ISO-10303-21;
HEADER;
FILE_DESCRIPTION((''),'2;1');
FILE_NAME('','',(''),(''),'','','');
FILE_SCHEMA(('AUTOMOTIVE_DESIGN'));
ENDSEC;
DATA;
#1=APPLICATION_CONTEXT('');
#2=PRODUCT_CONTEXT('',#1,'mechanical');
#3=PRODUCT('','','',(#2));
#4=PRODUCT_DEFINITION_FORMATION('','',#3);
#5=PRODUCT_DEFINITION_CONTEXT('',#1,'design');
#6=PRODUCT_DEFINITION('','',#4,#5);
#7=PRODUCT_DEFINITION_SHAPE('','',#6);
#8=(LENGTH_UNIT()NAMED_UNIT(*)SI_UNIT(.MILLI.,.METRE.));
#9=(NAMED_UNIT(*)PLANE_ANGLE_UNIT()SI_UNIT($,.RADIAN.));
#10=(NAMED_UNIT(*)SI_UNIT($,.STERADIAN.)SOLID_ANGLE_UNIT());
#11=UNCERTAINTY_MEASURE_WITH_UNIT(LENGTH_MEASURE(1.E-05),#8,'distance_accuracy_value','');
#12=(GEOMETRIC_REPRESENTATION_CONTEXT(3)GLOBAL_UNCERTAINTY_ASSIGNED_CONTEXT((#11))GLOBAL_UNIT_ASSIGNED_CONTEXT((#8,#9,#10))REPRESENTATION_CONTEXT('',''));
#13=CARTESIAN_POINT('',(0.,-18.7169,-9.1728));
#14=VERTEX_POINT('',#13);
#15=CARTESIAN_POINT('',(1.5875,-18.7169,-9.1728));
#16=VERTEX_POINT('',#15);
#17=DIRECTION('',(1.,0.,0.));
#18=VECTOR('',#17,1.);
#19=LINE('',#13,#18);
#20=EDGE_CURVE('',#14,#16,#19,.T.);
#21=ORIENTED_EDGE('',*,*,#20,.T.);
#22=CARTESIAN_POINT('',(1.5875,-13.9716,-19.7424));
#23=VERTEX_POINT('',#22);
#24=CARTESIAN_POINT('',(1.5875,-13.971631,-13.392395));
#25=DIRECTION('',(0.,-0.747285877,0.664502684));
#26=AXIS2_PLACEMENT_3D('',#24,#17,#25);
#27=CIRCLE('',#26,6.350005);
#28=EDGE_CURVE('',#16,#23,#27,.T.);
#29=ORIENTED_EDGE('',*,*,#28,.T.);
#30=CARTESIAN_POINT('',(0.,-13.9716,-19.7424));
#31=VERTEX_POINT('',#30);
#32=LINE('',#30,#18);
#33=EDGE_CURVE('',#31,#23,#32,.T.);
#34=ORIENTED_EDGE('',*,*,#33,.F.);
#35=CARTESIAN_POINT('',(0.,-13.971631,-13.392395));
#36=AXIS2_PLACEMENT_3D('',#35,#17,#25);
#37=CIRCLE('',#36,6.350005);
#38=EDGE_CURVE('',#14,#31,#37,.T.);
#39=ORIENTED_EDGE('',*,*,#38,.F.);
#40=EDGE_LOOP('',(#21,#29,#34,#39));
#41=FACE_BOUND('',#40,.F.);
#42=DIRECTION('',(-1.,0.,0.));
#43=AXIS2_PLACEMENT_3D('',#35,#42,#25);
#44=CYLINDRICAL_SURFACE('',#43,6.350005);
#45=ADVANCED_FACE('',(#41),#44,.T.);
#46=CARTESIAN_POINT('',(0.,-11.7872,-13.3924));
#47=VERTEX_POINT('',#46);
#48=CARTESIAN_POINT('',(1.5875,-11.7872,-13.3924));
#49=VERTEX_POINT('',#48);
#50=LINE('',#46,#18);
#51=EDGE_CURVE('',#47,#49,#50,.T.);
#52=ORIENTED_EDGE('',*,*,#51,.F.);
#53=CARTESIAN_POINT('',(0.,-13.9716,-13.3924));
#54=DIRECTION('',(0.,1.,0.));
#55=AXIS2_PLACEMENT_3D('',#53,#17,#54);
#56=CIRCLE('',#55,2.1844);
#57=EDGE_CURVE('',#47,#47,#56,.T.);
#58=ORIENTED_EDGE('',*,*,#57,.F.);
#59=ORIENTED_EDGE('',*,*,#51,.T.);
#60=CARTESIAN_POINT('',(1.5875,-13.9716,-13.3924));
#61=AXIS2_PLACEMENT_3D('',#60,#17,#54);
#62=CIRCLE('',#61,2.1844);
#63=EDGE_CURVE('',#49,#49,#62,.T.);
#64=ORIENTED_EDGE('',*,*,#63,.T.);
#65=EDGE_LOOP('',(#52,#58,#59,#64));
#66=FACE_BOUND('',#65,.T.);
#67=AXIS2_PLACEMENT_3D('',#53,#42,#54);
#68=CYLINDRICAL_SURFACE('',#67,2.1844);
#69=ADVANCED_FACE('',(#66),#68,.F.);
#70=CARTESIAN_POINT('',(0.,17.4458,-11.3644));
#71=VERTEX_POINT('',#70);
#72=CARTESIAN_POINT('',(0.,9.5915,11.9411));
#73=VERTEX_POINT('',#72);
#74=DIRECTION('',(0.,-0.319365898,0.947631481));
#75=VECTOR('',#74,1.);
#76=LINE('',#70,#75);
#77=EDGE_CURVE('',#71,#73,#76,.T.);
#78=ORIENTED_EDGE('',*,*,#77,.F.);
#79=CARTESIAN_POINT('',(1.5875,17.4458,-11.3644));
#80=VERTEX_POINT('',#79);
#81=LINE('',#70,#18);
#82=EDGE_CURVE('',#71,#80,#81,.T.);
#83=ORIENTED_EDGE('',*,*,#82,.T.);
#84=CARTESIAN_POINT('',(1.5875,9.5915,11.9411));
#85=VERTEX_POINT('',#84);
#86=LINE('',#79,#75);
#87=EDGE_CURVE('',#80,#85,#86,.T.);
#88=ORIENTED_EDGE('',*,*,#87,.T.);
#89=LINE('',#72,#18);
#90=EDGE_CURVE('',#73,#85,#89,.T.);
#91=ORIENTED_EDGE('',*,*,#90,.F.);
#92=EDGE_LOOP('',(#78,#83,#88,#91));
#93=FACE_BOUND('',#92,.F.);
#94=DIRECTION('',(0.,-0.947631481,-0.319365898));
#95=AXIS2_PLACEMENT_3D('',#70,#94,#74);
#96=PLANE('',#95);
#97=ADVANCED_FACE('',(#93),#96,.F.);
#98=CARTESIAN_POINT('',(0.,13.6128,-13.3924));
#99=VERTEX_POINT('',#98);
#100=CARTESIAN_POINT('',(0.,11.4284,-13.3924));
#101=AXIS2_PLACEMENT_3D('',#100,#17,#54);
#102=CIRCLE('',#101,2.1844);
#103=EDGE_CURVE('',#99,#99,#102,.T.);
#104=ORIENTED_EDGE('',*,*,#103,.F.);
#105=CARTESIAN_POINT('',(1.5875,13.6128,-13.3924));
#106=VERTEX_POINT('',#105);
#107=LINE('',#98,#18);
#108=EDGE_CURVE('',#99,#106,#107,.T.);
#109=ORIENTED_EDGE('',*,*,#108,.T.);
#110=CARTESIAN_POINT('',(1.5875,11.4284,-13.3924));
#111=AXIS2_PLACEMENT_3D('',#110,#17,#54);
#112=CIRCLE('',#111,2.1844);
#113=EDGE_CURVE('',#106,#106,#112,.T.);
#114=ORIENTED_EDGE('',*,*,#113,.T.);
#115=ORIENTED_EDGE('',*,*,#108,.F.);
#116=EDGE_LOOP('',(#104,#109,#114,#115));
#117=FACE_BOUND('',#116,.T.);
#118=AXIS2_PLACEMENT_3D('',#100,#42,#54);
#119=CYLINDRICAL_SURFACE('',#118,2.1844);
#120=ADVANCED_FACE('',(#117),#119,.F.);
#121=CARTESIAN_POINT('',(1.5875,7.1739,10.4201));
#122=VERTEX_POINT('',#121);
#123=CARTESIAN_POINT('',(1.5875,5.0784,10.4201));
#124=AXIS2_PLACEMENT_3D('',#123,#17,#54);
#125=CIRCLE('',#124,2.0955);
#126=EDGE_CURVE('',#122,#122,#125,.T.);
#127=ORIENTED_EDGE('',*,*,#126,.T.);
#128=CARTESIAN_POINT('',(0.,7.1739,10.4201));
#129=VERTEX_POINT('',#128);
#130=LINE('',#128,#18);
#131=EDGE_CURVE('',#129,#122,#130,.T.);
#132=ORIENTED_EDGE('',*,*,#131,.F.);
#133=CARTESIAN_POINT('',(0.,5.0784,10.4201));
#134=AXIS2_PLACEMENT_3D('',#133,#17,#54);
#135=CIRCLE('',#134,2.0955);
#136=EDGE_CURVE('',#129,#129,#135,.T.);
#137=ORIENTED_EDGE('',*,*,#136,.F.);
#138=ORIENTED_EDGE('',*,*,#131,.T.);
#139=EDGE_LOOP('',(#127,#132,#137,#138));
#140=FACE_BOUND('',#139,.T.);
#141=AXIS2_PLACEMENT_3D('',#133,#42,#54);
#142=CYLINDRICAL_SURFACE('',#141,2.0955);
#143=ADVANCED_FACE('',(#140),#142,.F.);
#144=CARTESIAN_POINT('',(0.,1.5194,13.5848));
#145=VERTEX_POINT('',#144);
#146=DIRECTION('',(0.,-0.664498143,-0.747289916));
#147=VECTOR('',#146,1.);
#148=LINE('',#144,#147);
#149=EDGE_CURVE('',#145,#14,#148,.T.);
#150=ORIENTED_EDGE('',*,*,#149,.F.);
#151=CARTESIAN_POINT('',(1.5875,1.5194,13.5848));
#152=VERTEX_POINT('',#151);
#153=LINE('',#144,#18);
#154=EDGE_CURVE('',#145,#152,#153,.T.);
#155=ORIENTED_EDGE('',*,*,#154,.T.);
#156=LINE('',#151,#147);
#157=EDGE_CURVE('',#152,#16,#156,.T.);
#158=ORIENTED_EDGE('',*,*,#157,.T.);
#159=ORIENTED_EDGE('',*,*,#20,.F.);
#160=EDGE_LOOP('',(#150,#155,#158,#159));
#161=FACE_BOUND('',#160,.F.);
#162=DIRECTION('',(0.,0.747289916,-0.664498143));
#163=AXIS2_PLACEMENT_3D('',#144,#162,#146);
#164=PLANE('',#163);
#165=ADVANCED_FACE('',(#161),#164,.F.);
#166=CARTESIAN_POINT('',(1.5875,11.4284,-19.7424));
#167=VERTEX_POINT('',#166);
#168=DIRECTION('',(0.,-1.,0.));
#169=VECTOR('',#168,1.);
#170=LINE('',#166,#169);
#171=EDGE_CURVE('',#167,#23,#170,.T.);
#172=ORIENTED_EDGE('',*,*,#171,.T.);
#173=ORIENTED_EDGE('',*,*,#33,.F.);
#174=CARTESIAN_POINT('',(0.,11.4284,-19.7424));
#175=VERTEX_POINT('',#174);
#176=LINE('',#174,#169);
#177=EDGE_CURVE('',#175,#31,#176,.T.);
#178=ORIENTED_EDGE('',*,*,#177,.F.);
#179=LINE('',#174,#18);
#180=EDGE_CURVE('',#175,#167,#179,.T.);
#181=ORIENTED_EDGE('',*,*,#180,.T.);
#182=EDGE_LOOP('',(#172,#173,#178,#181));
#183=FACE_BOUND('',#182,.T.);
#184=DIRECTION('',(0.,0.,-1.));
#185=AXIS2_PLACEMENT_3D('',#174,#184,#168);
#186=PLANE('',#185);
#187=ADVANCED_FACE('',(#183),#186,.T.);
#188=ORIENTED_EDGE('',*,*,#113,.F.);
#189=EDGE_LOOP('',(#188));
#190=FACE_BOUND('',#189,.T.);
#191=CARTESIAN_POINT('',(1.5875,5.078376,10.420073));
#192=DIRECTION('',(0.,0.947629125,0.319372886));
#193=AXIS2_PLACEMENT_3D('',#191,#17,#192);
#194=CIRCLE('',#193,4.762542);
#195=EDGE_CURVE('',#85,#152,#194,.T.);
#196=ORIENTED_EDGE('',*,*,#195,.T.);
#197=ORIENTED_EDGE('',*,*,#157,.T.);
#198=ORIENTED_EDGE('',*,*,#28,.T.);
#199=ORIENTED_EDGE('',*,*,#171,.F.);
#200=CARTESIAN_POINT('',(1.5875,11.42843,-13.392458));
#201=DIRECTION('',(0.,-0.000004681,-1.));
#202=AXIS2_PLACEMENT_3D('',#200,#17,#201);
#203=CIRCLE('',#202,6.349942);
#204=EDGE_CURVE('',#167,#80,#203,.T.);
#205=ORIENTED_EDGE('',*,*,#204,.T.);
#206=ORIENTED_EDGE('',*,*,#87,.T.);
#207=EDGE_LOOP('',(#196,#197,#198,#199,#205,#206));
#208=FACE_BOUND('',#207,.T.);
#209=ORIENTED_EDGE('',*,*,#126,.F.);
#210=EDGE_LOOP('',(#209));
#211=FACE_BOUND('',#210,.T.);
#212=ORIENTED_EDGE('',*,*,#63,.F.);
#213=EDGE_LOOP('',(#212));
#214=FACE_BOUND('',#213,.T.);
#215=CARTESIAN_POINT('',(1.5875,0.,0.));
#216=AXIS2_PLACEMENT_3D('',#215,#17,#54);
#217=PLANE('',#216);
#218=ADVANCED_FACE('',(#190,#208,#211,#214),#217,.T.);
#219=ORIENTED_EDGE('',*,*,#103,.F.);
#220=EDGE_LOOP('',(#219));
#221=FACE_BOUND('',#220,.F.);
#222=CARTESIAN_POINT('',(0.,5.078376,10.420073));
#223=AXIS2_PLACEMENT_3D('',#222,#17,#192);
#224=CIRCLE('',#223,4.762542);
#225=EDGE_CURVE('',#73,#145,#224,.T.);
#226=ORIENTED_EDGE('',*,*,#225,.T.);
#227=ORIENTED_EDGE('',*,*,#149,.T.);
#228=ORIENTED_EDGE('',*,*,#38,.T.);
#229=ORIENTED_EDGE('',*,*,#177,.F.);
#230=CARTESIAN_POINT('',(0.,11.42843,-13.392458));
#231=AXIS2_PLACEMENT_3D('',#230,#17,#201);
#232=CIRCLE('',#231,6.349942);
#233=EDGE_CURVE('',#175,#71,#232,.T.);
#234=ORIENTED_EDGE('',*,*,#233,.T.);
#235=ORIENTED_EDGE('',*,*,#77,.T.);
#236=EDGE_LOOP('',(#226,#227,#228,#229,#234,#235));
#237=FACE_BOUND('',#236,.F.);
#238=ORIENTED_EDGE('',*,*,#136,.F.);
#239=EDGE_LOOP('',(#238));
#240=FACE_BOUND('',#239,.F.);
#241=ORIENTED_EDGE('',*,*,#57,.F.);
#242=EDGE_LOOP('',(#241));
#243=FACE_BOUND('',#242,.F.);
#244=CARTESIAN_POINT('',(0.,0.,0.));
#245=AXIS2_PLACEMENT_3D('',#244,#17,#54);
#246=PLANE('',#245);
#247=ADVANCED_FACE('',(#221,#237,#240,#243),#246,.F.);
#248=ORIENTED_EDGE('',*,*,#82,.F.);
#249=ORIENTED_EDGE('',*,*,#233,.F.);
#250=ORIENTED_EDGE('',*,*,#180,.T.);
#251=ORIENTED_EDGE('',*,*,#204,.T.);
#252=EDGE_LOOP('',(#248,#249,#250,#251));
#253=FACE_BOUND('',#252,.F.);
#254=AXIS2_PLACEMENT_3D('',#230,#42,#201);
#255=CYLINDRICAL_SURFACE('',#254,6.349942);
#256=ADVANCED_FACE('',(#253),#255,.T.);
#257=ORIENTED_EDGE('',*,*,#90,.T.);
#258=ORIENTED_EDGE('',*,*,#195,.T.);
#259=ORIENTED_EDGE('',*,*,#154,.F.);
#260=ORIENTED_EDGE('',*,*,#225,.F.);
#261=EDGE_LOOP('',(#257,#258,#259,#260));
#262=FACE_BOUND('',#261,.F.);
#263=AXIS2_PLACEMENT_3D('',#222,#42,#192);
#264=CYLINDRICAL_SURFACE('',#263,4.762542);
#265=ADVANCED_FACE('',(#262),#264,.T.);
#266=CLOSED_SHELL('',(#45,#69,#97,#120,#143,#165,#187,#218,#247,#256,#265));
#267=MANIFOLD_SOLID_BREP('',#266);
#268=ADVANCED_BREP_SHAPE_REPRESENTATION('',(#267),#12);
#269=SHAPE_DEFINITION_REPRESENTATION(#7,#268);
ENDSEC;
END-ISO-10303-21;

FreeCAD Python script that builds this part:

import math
import FreeCAD as App
import Part
import Sketcher
Q = App.Units.Quantity

doc = App.newDocument("Part")
params = doc.addObject("Spreadsheet::Sheet", "Params")
for row, (alias, value) in enumerate([
    ("sketch1_radius", "0.25 in"),
    ("sketch1_diameter", "0.165 in"),
    ("sketch1_radius2", "0.1875 in"),
    ("sketch1_width", "1 in"),
    ("sketch1_diameter2", "0.172 in"),
    ("pad1_length", "0.0625 in"),
], start=1):
    params.set(f"A{row}", alias)
    params.set(f"B{row}", "=" + value)
    params.setAlias(f"B{row}", alias)

body = doc.addObject("PartDesign::Body", "Body")

# Sketch on YZ plane
sketch1 = body.newObject("Sketcher::SketchObject", "Sketch")
sketch1.AttachmentSupport = (doc.getObject("YZ_Plane"), [""])
sketch1.MapMode = "FlatFace"
sketch1.addGeometry([
    Part.LineSegment(App.Vector(-13.9716, -19.7424, 0), App.Vector(11.4284, -19.7424, 0)),  # 0
    Part.ArcOfCircle(Part.Circle(App.Vector(11.4284, -13.3924, 0), App.Vector(0, 0, 1), 6.35), math.radians(-90), math.radians(18.624981)),  # 1
    Part.LineSegment(App.Vector(17.4458, -11.3644, 0), App.Vector(9.5915, 11.9411, 0)),  # 2
    Part.ArcOfCircle(Part.Circle(App.Vector(5.0784, 10.4201, 0), App.Vector(0, 0, 1), 4.762511), math.radians(18.624789), math.radians(138.35617)),  # 3
    Part.LineSegment(App.Vector(1.5194, 13.5848, 0), App.Vector(-18.7169, -9.1728, 0)),  # 4
    Part.ArcOfCircle(Part.Circle(App.Vector(-13.9716, -13.3924, 0), App.Vector(0, 0, 1), 6.350031), math.radians(138.35597), math.radians(270)),  # 5
    Part.Circle(App.Vector(-13.9716, -13.3924, 0), App.Vector(0, 0, 1), 2.1844),  # 6
    Part.Circle(App.Vector(11.4284, -13.3924, 0), App.Vector(0, 0, 1), 2.1844),  # 7
    Part.Circle(App.Vector(5.0784, 10.4201, 0), App.Vector(0, 0, 1), 2.0955),  # 8
], False)
sketch1.addConstraint([
    Sketcher.Constraint("Tangent", 0, 2, 1, 1),
    Sketcher.Constraint("Tangent", 1, 2, 2, 1),
    Sketcher.Constraint("Tangent", 2, 2, 3, 1),
    Sketcher.Constraint("Tangent", 3, 2, 4, 1),
    Sketcher.Constraint("Tangent", 4, 2, 5, 1),
    Sketcher.Constraint("Tangent", 5, 2, 0, 1),
    Sketcher.Constraint("Horizontal", 0),
    Sketcher.Constraint("Coincident", 6, 3, 5, 3),
    Sketcher.Constraint("Coincident", 7, 3, 1, 3),
    Sketcher.Constraint("Coincident", 8, 3, 3, 3),
    Sketcher.Constraint("Equal", 1, 5),
    Sketcher.Constraint("Equal", 6, 7),
    Sketcher.Constraint("Radius", 1, Q("0.25 in")),
    Sketcher.Constraint("Diameter", 8, Q("0.165 in")),
    Sketcher.Constraint("Radius", 3, Q("0.1875 in")),
    Sketcher.Constraint("DistanceX", 0, 1, 0, 2, Q("1 in")),
    Sketcher.Constraint("Diameter", 6, Q("0.172 in")),
    Sketcher.Constraint("DistanceX", 3, 3, 1, 3, Q("0.25 in")),
    Sketcher.Constraint("DistanceY", 1, 3, 3, 3, Q("0.9375 in")),
    Sketcher.Constraint("DistanceX", -1, 1, 1, 3, Q("11.4284 mm")),
    Sketcher.Constraint("DistanceY", 1, 3, -1, 1, Q("13.3924 mm")),
])
sketch1.setExpression("Constraints[12]", "Params.sketch1_radius")
sketch1.setExpression("Constraints[13]", "Params.sketch1_diameter")
sketch1.setExpression("Constraints[14]", "Params.sketch1_radius2")
sketch1.setExpression("Constraints[15]", "Params.sketch1_width")
sketch1.setExpression("Constraints[16]", "Params.sketch1_diameter2")
pad1 = body.newObject("PartDesign::Pad", "Pad")
pad1.Profile = sketch1
pad1.setExpression("Length", "Params.pad1_length")

doc.recompute()
